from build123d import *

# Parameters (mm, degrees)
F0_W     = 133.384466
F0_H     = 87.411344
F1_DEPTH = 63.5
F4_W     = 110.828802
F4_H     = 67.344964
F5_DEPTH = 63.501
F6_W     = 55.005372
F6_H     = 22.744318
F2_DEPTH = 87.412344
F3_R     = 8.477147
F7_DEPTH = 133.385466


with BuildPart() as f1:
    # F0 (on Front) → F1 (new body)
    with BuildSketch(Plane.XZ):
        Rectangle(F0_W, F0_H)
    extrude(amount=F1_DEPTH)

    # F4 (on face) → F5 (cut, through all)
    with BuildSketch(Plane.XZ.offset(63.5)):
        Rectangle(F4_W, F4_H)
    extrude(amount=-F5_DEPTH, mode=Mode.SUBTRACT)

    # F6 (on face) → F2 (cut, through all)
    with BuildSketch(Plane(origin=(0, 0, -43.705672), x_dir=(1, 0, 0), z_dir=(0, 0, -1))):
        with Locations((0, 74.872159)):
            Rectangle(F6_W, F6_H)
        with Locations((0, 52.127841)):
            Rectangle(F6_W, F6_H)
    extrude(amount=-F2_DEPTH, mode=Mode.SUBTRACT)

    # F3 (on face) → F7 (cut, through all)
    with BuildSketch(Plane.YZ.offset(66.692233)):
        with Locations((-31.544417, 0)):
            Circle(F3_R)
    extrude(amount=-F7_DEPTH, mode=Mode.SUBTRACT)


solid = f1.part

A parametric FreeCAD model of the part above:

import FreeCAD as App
import Part
import Sketcher
Q = App.Units.Quantity


def add_polygon(sketch, points):
    """Adds a closed chain of lines whose ends are joined by coincident constraints."""
    first, n = sketch.GeometryCount, len(points)
    for a, b in zip(points, points[1:] + points[:1]):
        sketch.addGeometry(Part.LineSegment(App.Vector(*a, 0), App.Vector(*b, 0)), False)
    for i in range(n):
        sketch.addConstraint(Sketcher.Constraint("Coincident", first + i, 2, first + (i + 1) % n, 1))

doc = App.newDocument("Part")
body = doc.addObject("PartDesign::Body", "Body")

# Sketch on XZ plane
sketch1 = body.newObject("Sketcher::SketchObject", "Sketch")
sketch1.AttachmentSupport = (doc.getObject("XZ_Plane"), [""])
sketch1.MapMode = "FlatFace"
add_polygon(sketch1, [(-67, 44), (-67, -44), (67, -44), (67, 44)])  # lines 0-3
sketch1.addConstraint([
    Sketcher.Constraint("Vertical", 0),
    Sketcher.Constraint("Horizontal", 1),
    Sketcher.Constraint("Vertical", 2),
    Sketcher.Constraint("Horizontal", 3),
    Sketcher.Constraint("Symmetric", 0, 2, 2, 2, -1, 1),
    Sketcher.Constraint("DistanceX", 1, 1, 1, 2, Q("133.384466 mm")),
    Sketcher.Constraint("DistanceY", 0, 2, 0, 1, Q("87.411344 mm")),
])
pad1 = body.newObject("PartDesign::Pad", "Pad")
pad1.Profile = sketch1
pad1.Length = Q("2.5 in")

# Sketch on XZ plane
sketch2 = body.newObject("Sketcher::SketchObject", "Sketch001")
sketch2.AttachmentSupport = (doc.getObject("XZ_Plane"), [""])
sketch2.MapMode = "FlatFace"
sketch2.AttachmentOffset = App.Placement(App.Vector(0, 0, 2.5 * 25.4), App.Rotation())
add_polygon(sketch2, [(-55, 34), (-55, -34), (55, -34), (55, 34)])  # lines 0-3
sketch2.addConstraint([
    Sketcher.Constraint("Vertical", 0),
    Sketcher.Constraint("Horizontal", 1),
    Sketcher.Constraint("Vertical", 2),
    Sketcher.Constraint("Horizontal", 3),
    Sketcher.Constraint("Symmetric", 0, 2, 2, 2, -1, 1),
    Sketcher.Constraint("DistanceX", 1, 1, 1, 2, Q("110.828802 mm")),
    Sketcher.Constraint("DistanceY", 0, 2, 0, 1, Q("67.344964 mm")),
])
pocket1 = body.newObject("PartDesign::Pocket", "Pocket")
pocket1.Profile = sketch2
pocket1.Type = "ThroughAll"

# Sketch on XY plane
sketch3 = body.newObject("Sketcher::SketchObject", "Sketch002")
sketch3.AttachmentSupport = (doc.getObject("XY_Plane"), [""])
sketch3.MapMode = "FlatFace"
sketch3.AttachmentOffset = App.Placement(App.Vector(0, 0, -43.705672), App.Rotation())
add_polygon(sketch3, [(-28, -86), (-28, -41), (28, -41), (28, -86)])  # lines 0-3
sketch3.addConstraint([
    Sketcher.Constraint("Vertical", 0),
    Sketcher.Constraint("Horizontal", 1),
    Sketcher.Constraint("Vertical", 2),
    Sketcher.Constraint("Horizontal", 3),
    Sketcher.Constraint("DistanceX", 1, 1, 1, 2, Q("55.005372 mm")),
    Sketcher.Constraint("DistanceY", 0, 1, 0, 2, Q("45.488636 mm")),
    Sketcher.Constraint("DistanceY", 2, 2, -1, 1, Q("86.244318 mm")),
    Sketcher.Constraint("DistanceX", 0, 2, -1, 1, Q("27.502686 mm")),
])
pocket2 = body.newObject("PartDesign::Pocket", "Pocket001")
pocket2.Profile = sketch3
pocket2.Type = "ThroughAll"
pocket2.Reversed = True

# Sketch on YZ plane
sketch4 = body.newObject("Sketcher::SketchObject", "Sketch003")
sketch4.AttachmentSupport = (doc.getObject("YZ_Plane"), [""])
sketch4.MapMode = "FlatFace"
sketch4.AttachmentOffset = App.Placement(App.Vector(0, 0, 66.692233), App.Rotation())
sketch4.addGeometry(Part.Circle(App.Vector(-32, 0, 0), App.Vector(0, 0, 1), 8), False)
sketch4.addConstraint([
    Sketcher.Constraint("PointOnObject", 0, 3, -1),
    Sketcher.Constraint("Diameter", 0, Q("16.954294 mm")),
    Sketcher.Constraint("DistanceX", 0, 3, -1, 1, Q("31.544417 mm")),
])
pocket3 = body.newObject("PartDesign::Pocket", "Pocket002")
pocket3.Profile = sketch4
pocket3.Type = "ThroughAll"

doc.recompute()
